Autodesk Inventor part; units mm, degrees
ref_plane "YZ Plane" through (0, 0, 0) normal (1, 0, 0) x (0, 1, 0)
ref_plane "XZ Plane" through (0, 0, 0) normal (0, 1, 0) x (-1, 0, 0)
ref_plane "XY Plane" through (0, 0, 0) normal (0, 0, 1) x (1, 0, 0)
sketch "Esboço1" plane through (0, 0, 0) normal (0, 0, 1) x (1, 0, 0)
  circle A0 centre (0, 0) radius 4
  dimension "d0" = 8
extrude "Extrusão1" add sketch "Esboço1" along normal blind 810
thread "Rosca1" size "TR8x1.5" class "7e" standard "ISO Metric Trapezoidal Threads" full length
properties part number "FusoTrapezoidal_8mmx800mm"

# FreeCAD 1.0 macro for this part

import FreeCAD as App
import Part
import Sketcher
from FreeCAD import Vector

doc = App.newDocument("Part")
params = doc.addObject("Spreadsheet::Sheet", "Params")
for row, (alias, value) in enumerate([
    ("sketch1_diameter", "8 mm"),
    ("pad1_length", "810 mm"),
], start=1):
    params.set(f"A{row}", alias)
    params.set(f"B{row}", "=" + value)
    params.setAlias(f"B{row}", alias)

body = doc.addObject("PartDesign::Body", "Body")

sketch1 = doc.addObject("Sketcher::SketchObject", "Sketch")
body.addObject(sketch1)
sketch1.AttachmentSupport = (doc.XY_Plane, [""])
sketch1.MapMode = "FlatFace"
sketch1.addGeometry(Part.Circle(Vector(0, 0, 0), Vector(0, 0, 1), 4), False)
sketch1.addConstraint([
    Sketcher.Constraint("Coincident", 0, 3, -1, 1),
    Sketcher.Constraint("Diameter", 0, 8.0),
])
sketch1.setExpression("Constraints[1]", "Params.sketch1_diameter")
pad1 = doc.addObject("PartDesign::Pad", "Pad")
body.addObject(pad1)
pad1.Profile = sketch1
pad1.setExpression("Length", "Params.pad1_length")

doc.recompute()
